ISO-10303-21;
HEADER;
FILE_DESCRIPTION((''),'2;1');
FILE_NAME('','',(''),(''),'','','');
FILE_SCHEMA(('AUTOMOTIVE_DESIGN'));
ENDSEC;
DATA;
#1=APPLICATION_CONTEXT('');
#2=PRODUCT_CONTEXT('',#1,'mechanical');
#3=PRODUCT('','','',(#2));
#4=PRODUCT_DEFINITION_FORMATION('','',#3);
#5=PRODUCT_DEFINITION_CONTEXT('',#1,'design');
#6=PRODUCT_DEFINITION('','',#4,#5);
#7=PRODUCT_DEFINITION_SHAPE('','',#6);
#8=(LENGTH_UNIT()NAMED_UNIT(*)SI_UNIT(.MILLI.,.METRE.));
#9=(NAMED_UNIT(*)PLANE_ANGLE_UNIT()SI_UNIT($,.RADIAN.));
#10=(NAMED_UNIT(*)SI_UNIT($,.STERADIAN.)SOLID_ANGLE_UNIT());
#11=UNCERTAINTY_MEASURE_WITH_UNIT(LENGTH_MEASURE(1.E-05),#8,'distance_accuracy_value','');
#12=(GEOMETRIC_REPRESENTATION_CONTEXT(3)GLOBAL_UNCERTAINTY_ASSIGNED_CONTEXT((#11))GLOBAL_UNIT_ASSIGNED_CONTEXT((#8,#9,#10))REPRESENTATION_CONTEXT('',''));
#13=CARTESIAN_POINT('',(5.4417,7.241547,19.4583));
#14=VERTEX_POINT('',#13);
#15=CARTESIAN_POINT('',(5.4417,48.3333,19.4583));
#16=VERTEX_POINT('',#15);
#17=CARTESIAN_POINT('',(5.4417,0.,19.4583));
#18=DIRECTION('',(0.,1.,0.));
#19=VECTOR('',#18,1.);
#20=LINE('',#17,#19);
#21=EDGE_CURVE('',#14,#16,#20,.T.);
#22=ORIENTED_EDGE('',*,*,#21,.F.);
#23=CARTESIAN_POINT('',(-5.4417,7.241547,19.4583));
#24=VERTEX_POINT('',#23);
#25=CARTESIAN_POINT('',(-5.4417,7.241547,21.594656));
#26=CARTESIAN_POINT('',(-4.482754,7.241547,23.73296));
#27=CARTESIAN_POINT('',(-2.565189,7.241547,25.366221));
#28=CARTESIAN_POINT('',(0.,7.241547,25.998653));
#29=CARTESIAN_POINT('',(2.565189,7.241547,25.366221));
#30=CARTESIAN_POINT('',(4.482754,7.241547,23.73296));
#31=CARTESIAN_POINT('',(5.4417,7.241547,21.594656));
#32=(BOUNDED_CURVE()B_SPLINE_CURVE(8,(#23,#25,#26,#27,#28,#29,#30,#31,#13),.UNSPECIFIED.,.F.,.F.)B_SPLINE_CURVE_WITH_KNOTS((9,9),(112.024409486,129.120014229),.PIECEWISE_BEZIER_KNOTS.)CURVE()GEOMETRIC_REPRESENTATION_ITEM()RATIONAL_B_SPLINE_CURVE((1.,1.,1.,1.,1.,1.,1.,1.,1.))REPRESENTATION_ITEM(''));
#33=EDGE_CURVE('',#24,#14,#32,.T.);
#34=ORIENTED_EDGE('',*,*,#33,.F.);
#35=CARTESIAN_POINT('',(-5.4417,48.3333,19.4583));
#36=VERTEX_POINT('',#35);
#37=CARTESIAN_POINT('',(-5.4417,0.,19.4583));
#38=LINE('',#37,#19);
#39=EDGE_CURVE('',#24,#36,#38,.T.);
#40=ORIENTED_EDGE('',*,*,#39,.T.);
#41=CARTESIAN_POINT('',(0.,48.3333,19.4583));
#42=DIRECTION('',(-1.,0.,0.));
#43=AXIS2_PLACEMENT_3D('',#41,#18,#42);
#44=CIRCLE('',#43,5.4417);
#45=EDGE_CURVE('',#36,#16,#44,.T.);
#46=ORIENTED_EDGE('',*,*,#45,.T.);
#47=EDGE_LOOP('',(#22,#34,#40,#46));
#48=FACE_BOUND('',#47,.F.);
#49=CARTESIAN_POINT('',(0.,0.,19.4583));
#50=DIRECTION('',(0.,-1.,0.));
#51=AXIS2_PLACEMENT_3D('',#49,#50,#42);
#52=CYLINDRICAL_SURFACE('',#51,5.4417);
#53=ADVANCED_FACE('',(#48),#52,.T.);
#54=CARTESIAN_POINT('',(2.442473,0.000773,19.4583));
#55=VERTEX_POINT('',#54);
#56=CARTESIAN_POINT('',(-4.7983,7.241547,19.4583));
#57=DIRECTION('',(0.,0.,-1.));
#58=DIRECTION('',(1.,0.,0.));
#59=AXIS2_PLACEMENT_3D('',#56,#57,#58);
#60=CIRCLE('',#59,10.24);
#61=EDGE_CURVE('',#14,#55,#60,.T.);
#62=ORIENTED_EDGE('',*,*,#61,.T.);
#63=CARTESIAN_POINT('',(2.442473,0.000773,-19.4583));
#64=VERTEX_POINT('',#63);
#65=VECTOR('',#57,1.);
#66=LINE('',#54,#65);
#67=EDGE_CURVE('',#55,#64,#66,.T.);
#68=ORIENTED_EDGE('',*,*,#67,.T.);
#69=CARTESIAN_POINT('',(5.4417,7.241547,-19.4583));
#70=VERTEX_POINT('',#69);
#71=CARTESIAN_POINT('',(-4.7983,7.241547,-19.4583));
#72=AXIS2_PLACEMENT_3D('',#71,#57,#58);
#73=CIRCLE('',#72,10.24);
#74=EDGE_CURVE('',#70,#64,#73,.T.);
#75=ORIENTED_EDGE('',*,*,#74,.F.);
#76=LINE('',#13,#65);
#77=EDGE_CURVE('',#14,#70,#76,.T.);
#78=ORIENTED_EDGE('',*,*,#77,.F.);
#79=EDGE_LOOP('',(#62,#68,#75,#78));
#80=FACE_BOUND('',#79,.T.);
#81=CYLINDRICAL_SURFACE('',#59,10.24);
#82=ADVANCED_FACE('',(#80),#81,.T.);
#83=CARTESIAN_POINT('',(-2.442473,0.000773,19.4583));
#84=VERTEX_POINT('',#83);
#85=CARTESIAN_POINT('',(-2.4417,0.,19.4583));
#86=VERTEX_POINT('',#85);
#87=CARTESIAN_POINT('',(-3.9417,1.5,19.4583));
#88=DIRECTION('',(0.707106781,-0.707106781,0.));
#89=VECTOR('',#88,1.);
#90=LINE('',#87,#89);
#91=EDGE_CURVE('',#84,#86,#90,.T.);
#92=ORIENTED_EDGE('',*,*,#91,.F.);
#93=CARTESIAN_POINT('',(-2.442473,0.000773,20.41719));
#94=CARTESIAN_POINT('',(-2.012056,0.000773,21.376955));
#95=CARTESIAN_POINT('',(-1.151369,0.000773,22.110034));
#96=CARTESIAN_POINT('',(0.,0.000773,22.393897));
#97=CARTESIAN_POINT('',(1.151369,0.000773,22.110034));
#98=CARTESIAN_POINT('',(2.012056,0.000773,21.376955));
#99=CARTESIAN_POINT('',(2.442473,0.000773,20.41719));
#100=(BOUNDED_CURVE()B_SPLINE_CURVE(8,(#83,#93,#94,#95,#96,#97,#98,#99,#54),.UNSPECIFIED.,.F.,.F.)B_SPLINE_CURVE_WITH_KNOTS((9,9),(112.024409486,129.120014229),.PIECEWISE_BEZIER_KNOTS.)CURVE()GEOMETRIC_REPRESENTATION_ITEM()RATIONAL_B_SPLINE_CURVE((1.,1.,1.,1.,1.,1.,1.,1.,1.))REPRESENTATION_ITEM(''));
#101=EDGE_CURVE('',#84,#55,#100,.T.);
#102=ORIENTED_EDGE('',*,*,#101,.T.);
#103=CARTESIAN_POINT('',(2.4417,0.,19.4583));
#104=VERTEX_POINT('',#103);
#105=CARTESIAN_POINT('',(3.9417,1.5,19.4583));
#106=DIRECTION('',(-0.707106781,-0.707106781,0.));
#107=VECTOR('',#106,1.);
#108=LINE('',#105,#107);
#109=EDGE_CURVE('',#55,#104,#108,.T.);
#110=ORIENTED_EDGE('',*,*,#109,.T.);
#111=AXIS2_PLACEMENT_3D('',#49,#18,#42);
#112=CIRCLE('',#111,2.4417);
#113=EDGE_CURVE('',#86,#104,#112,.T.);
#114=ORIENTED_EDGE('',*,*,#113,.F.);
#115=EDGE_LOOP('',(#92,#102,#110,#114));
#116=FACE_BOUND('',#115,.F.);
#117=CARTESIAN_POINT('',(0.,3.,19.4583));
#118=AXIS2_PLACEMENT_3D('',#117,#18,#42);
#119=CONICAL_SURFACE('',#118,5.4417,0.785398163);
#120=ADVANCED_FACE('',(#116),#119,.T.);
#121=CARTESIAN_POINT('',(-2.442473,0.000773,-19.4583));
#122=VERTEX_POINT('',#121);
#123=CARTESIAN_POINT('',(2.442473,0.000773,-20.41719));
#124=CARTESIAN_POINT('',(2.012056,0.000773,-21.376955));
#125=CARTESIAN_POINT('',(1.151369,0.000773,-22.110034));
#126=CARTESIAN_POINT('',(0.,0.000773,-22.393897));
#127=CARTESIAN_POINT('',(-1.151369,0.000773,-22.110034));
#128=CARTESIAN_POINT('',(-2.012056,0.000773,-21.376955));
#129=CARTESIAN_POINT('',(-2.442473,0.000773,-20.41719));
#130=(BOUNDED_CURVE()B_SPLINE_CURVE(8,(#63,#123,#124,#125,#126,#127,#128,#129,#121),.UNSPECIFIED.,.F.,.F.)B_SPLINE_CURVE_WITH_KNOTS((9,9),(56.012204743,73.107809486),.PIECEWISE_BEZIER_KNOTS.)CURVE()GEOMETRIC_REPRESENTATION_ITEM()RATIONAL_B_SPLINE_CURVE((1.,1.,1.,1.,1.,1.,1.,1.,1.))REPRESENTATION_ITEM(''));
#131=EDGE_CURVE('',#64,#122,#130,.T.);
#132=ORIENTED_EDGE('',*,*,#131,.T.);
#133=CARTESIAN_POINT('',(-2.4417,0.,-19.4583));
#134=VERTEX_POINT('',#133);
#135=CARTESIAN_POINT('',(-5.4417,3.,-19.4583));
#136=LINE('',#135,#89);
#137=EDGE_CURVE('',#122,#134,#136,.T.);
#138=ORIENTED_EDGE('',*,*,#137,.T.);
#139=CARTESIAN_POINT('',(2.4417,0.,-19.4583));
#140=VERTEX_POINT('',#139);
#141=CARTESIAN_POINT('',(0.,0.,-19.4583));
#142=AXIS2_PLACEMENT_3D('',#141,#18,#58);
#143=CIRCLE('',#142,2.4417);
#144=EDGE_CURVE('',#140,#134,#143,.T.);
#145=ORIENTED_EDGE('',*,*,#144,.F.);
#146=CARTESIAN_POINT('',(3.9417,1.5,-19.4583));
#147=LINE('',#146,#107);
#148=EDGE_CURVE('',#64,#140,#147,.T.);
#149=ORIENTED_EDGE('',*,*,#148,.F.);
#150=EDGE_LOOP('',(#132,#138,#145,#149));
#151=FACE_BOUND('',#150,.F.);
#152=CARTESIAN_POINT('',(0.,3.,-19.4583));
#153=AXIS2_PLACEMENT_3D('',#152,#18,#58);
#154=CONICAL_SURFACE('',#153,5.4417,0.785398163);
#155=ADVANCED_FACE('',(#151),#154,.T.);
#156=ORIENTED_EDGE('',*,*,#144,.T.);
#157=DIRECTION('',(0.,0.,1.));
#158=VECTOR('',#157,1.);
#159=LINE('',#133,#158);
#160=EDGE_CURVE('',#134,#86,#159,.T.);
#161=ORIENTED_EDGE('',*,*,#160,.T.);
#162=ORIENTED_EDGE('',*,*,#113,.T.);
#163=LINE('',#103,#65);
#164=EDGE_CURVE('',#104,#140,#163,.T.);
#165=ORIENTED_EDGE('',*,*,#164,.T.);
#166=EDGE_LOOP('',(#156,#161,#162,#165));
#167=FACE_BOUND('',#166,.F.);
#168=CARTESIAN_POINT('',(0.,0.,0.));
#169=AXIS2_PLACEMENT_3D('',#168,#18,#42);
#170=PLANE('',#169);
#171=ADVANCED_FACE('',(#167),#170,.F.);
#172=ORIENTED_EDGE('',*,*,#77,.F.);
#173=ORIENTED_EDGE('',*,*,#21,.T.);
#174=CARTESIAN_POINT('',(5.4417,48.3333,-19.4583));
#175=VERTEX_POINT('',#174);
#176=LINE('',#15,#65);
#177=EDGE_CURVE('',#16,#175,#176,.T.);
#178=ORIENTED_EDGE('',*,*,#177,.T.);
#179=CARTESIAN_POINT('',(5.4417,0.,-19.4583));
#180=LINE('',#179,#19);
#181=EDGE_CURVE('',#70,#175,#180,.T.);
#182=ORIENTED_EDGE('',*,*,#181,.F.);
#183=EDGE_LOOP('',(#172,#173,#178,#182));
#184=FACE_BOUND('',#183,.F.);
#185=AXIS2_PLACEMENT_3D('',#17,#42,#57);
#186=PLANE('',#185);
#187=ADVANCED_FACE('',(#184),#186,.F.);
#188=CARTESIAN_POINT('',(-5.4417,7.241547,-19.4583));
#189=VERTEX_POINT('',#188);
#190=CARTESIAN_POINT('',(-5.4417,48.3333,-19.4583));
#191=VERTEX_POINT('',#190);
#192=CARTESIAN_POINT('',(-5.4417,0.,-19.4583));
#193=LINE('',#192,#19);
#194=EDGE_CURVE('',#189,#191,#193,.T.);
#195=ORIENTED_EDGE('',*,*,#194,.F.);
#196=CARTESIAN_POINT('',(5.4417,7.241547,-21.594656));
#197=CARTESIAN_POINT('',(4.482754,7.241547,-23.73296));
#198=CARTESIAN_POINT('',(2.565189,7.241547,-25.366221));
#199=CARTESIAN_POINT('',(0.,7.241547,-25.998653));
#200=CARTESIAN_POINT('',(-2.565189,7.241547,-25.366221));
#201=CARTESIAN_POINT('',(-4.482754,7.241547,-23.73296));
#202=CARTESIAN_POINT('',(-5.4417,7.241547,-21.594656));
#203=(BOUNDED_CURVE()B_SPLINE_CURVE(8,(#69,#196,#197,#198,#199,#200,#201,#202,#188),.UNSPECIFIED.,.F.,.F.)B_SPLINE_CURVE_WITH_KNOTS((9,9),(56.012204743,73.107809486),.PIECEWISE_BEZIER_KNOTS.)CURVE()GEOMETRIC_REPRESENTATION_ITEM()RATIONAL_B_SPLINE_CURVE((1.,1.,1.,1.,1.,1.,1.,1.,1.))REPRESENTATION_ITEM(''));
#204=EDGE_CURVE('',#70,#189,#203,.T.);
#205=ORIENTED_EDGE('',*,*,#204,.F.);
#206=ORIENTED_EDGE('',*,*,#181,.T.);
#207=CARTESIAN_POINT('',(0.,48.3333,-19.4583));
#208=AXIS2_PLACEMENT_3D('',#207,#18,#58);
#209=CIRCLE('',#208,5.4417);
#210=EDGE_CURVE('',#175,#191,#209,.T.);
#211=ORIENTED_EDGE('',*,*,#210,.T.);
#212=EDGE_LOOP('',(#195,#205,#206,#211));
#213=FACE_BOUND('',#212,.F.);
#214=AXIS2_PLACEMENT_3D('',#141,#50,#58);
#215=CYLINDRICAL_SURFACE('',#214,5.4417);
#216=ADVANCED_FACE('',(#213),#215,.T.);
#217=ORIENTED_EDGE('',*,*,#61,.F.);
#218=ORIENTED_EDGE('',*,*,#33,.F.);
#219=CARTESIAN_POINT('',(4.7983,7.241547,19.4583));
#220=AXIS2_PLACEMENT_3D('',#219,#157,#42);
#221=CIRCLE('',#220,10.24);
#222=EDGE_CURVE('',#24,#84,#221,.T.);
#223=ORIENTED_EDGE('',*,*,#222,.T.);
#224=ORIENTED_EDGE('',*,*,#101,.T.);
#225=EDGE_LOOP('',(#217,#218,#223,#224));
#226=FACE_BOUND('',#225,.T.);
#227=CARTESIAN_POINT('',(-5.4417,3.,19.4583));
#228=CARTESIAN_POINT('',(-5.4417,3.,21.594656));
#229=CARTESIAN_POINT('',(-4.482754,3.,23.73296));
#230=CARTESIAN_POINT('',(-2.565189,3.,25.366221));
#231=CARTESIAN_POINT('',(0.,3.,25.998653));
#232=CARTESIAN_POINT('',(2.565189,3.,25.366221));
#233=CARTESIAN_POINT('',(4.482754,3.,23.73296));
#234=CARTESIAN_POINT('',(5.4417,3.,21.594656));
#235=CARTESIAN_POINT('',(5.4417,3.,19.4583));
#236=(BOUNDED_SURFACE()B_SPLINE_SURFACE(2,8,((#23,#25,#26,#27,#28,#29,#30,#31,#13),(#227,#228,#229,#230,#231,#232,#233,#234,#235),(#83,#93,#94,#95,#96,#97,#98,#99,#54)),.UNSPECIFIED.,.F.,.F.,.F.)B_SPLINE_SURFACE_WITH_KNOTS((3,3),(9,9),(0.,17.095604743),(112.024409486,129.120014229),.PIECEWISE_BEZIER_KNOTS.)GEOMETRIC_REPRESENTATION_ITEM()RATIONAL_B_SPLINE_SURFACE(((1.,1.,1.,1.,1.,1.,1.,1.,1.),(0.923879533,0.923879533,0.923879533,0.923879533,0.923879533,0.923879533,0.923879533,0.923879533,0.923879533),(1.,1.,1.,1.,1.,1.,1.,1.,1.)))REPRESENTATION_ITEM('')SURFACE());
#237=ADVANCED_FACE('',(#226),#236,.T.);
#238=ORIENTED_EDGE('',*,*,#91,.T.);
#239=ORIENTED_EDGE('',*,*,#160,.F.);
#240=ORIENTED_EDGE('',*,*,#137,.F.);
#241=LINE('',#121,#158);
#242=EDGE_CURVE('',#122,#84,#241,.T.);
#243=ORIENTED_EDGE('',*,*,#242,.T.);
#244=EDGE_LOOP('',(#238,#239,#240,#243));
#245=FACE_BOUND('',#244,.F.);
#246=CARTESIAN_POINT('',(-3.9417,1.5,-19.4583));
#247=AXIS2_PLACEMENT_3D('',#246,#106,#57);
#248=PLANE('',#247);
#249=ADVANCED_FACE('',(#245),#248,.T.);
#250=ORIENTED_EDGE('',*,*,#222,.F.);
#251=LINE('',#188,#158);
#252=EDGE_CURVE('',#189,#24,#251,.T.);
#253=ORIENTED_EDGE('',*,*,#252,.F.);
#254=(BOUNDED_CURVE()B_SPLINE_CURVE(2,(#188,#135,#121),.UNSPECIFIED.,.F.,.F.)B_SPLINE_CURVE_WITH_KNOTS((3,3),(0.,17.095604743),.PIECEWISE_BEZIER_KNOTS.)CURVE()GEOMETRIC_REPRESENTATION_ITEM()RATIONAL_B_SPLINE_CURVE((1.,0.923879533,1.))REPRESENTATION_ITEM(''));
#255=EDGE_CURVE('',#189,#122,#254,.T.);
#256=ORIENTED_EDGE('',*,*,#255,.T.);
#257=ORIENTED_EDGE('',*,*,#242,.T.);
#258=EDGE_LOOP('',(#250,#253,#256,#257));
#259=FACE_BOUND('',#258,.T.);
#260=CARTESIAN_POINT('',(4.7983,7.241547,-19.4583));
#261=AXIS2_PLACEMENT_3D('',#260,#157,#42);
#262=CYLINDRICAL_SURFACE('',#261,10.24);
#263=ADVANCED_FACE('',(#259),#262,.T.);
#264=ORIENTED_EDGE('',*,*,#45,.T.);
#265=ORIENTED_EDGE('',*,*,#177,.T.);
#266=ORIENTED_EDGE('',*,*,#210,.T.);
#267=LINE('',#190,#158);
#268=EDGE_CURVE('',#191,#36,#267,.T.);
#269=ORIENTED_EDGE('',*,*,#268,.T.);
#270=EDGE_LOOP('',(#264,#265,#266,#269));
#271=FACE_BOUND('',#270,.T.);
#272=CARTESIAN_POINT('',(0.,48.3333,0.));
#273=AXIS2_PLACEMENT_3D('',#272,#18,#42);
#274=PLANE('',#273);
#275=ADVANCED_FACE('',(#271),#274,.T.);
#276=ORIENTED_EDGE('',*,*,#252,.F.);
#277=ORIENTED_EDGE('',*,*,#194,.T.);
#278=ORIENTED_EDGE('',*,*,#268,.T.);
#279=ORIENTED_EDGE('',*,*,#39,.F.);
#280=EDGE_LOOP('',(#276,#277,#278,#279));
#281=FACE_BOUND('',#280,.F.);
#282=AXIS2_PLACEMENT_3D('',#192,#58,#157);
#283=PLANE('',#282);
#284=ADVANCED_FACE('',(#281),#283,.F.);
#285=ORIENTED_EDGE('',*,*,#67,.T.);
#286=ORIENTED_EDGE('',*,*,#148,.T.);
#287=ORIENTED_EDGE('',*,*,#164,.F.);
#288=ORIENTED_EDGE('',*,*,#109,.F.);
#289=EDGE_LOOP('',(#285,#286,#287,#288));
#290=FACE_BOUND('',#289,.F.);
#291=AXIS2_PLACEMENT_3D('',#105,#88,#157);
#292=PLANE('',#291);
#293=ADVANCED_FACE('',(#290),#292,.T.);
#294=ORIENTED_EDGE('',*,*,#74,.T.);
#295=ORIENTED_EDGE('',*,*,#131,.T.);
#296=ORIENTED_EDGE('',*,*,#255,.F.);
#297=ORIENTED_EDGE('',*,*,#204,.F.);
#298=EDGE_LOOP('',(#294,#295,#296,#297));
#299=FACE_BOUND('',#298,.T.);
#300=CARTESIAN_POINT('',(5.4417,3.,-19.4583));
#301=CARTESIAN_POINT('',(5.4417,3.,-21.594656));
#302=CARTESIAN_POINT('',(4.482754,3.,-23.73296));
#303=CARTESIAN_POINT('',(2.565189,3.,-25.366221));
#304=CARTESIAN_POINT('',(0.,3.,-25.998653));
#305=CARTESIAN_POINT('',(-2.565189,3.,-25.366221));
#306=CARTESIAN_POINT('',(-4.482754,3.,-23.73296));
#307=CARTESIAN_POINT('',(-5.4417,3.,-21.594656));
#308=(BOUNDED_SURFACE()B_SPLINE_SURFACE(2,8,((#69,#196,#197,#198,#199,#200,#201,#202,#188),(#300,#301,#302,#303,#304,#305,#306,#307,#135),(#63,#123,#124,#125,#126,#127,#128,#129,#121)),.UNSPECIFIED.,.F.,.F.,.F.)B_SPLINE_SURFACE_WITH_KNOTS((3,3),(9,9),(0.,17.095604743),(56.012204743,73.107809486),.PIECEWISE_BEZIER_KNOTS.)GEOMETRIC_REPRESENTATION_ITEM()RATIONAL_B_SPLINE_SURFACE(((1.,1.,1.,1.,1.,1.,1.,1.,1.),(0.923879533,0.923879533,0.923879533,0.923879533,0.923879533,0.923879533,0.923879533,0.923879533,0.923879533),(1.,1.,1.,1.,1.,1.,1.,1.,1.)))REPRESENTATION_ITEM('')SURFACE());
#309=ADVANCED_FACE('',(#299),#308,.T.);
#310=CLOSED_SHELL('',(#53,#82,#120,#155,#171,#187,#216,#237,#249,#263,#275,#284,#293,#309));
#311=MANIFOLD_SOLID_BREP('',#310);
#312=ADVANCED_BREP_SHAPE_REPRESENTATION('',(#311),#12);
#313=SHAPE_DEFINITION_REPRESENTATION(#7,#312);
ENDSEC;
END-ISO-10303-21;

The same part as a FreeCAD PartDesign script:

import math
import FreeCAD as App
import Part
import Sketcher
from FreeCAD import Vector
Q = App.Units.Quantity


def edges_at(feature, points):
    """Names of the edges that pass closest to the given points."""
    edges = feature.Shape.Edges
    near = lambda p: min(range(len(edges)), key=lambda i: edges[i].distToShape(Part.Vertex(*p))[0])
    return sorted({f"Edge{near(p) + 1}" for p in points})

doc = App.newDocument("Part")
body = doc.addObject("PartDesign::Body", "Body")

sketch1 = body.newObject("Sketcher::SketchObject", "Sketch")
sketch1.AttachmentSupport = (doc.getObject("XZ_Plane"), [""])
sketch1.MapMode = "FlatFace"
sketch1.addGeometry([
    Part.ArcOfCircle(Part.Circle(Vector(0, 19.4583, 0), Vector(0, 0, 1), 5.4417), math.radians(0), math.radians(180)),
    Part.LineSegment(Vector(5.4417, 19.4583, 0), Vector(5.4417, -19.4583, 0)),
    Part.ArcOfCircle(Part.Circle(Vector(0, -19.4583, 0), Vector(0, 0, 1), 5.4417), math.radians(180), math.radians(360)),
    Part.LineSegment(Vector(-5.4417, -19.4583, 0), Vector(-5.4417, 19.4583, 0)),
], False)
sketch1.addConstraint([
    Sketcher.Constraint("Tangent", 0, 1, 1, 1),
    Sketcher.Constraint("Tangent", 1, 2, 2, 2),
    Sketcher.Constraint("Tangent", 2, 1, 3, 1),
    Sketcher.Constraint("Tangent", 3, 2, 0, 2),
    Sketcher.Constraint("Vertical", 1),
    Sketcher.Constraint("Vertical", 3),
    Sketcher.Constraint("Symmetric", 0, 3, 2, 3, -1, 1),
    Sketcher.Constraint("DistanceY", 1, 2, 1, 1, Q("38.9166 mm")),
    Sketcher.Constraint("Radius", 0, Q("5.4417 mm")),
])
pad1 = body.newObject("PartDesign::Pad", "Pad")
pad1.Profile = sketch1
pad1.Length = 48.3333
pad1.Reversed = True
doc.recompute()

chamfer = body.newObject("PartDesign::Chamfer", "Chamfer")
chamfer.Base = (pad1, edges_at(pad1, [
    (5.442, 0, 0),
    (0, 0, -24.9),
    (-5.442, 0, 0),
    (0, 0, 24.9),
]))
chamfer.Size = 3
doc.recompute()

fillet = body.newObject("PartDesign::Fillet", "Fillet")
fillet.Base = (chamfer, edges_at(chamfer, [
    (0, 3, 24.9),
    (-5.442, 3, 0),
    (0, 3, -24.9),
    (5.442, 3, 0),
]))
fillet.Radius = 10.24

doc.recompute()
